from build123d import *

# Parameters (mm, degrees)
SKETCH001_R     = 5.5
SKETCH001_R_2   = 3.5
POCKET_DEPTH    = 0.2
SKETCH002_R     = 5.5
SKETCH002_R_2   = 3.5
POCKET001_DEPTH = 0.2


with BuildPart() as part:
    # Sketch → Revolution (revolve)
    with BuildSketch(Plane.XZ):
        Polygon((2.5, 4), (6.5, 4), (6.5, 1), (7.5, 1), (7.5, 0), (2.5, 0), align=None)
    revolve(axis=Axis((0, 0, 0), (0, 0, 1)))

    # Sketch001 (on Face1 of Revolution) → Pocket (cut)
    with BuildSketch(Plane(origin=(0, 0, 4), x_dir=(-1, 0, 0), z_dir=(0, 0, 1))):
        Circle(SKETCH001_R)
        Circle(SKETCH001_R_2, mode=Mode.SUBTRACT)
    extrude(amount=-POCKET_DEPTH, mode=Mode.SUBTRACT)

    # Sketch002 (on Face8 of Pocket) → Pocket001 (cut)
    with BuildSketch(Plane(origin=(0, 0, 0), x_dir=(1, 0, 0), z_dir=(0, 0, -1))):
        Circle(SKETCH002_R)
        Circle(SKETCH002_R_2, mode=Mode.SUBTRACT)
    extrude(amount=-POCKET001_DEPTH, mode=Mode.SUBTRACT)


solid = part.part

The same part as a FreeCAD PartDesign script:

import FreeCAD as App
import Part
import Sketcher
from FreeCAD import Vector
Q = App.Units.Quantity


def add_polygon(sketch, points):
    """Adds a closed chain of lines whose ends are joined by coincident constraints."""
    first, n = sketch.GeometryCount, len(points)
    for a, b in zip(points, points[1:] + points[:1]):
        sketch.addGeometry(Part.LineSegment(App.Vector(*a, 0), App.Vector(*b, 0)), False)
    for i in range(n):
        sketch.addConstraint(Sketcher.Constraint("Coincident", first + i, 2, first + (i + 1) % n, 1))

doc = App.newDocument("Part")
body = doc.addObject("PartDesign::Body", "Body")

sketch1 = body.newObject("Sketcher::SketchObject", "Sketch")
sketch1.AttachmentSupport = (doc.getObject("XZ_Plane"), [""])
sketch1.MapMode = "FlatFace"
add_polygon(sketch1, [(6.5, 4), (2.5, 4), (2.5, 0), (7.5, 0), (7.5, 1), (6.5, 1)])
sketch1.addConstraint([
    Sketcher.Constraint("Horizontal", 0),
    Sketcher.Constraint("Vertical", 1),
    Sketcher.Constraint("Horizontal", 2),
    Sketcher.Constraint("Vertical", 3),
    Sketcher.Constraint("Horizontal", 4),
    Sketcher.Constraint("Vertical", 5),
    Sketcher.Constraint("PointOnObject", 1, 2, -1),
    Sketcher.Constraint("Equal", 0, 1),
    Sketcher.Constraint("Equal", 4, 3),
    Sketcher.Constraint("DistanceX", 0, 2, 0, 1, Q("4 mm")),
    Sketcher.Constraint("DistanceX", 2, 1, 2, 2, Q("5 mm")),
    Sketcher.Constraint("DistanceX", -1, 1, 0, 2, Q("2.5 mm")),
])
revolution = body.newObject("PartDesign::Revolution", "Revolution")
revolution.Profile = sketch1
revolution.ReferenceAxis = (sketch1, ["V_Axis"])
revolution.Angle = 360

sketch2 = body.newObject("Sketcher::SketchObject", "Sketch001")
sketch2.AttachmentSupport = (doc.getObject("XY_Plane"), [""])
sketch2.MapMode = "FlatFace"
sketch2.AttachmentOffset = App.Placement(Vector(0, 0, 4), App.Rotation())
sketch2.addGeometry([
    Part.Circle(Vector(0, 0, 0), Vector(0, 0, 1), 5.5),
    Part.Circle(Vector(0, 0, 0), Vector(0, 0, 1), 3.5),
], False)
sketch2.addConstraint([
    Sketcher.Constraint("Coincident", 0, 3, -1, 1),
    Sketcher.Constraint("Coincident", 1, 3, -1, 1),
    Sketcher.Constraint("Diameter", 0, Q("11 mm")),
    Sketcher.Constraint("Diameter", 1, Q("7 mm")),
])
pocket1 = body.newObject("PartDesign::Pocket", "Pocket")
pocket1.Profile = sketch2
pocket1.Length = 0.2

sketch3 = body.newObject("Sketcher::SketchObject", "Sketch002")
sketch3.AttachmentSupport = (doc.getObject("XY_Plane"), [""])
sketch3.MapMode = "FlatFace"
sketch3.addGeometry([
    Part.Circle(Vector(0, 0, 0), Vector(0, 0, 1), 5.5),
    Part.Circle(Vector(0, 0, 0), Vector(0, 0, 1), 3.5),
], False)
sketch3.addConstraint([
    Sketcher.Constraint("Coincident", 0, 3, -1, 1),
    Sketcher.Constraint("Coincident", 1, 3, -1, 1),
    Sketcher.Constraint("Diameter", 0, Q("11 mm")),
    Sketcher.Constraint("Diameter", 1, Q("7 mm")),
])
pocket2 = body.newObject("PartDesign::Pocket", "Pocket001")
pocket2.Profile = sketch3
pocket2.Length = 0.2
pocket2.Reversed = True

doc.recompute()
